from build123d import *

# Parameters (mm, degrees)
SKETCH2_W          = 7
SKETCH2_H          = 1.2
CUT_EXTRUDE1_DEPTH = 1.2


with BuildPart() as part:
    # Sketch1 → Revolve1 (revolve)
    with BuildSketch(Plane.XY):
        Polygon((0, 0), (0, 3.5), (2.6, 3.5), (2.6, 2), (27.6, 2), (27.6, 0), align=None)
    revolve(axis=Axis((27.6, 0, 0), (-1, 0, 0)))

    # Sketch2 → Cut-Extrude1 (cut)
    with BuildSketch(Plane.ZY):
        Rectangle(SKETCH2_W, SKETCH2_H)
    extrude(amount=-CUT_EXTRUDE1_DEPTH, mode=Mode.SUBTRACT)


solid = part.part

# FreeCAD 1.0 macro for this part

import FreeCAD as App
import Part
import Sketcher

V = App.Vector
Q = App.Units.Quantity


def add_polygon(sketch, points):
    """Adds a closed chain of lines whose ends are joined by coincident constraints."""
    first, n = sketch.GeometryCount, len(points)
    for a, b in zip(points, points[1:] + points[:1]):
        sketch.addGeometry(Part.LineSegment(App.Vector(*a, 0), App.Vector(*b, 0)), False)
    for i in range(n):
        sketch.addConstraint(Sketcher.Constraint("Coincident", first + i, 2, first + (i + 1) % n, 1))

doc = App.newDocument("Part")
params = doc.addObject("Spreadsheet::Sheet", "Params")
for row, (alias, value) in enumerate([
    ("sketch1_width", "25 mm"),
    ("sketch1_height", "2 mm"),
    ("sketch1_width2", "27.6 mm"),
    ("sketch1_height2", "3.5 mm"),
    ("revolution_angle", "360 deg"),
    ("sketch2_height", "7 mm"),
    ("sketch2_width", "1.2 mm"),
    ("pocket1_length", "1.2 mm"),
], start=1):
    params.set(f"A{row}", alias)
    params.set(f"B{row}", "=" + value)
    params.setAlias(f"B{row}", alias)

body = doc.addObject("PartDesign::Body", "Body")

# Sketch on XY plane
sketch1 = body.newObject("Sketcher::SketchObject", "Sketch")
sketch1.AttachmentSupport = (doc.getObject("XY_Plane"), [""])
sketch1.MapMode = "FlatFace"
add_polygon(sketch1, [(0, 3.5), (0, 0), (27.6, 0), (27.6, 2), (2.6, 2), (2.6, 3.5)])  # lines 0-5
sketch1.addConstraint(Sketcher.Constraint("Vertical", 0))
sketch1.addConstraint(Sketcher.Constraint("Horizontal", 1))
sketch1.addConstraint(Sketcher.Constraint("Vertical", 2))
sketch1.addConstraint(Sketcher.Constraint("Horizontal", 3))
sketch1.addConstraint(Sketcher.Constraint("Vertical", 4))
sketch1.addConstraint(Sketcher.Constraint("Horizontal", 5))
sketch1.addConstraint(Sketcher.Constraint("Coincident", 0, 2, -1, 1))
sketch1.addConstraint(Sketcher.Constraint("DistanceX", 3, 2, 3, 1, Q("25 mm")))
sketch1.addConstraint(Sketcher.Constraint("DistanceY", 2, 1, 2, 2, Q("2 mm")))
sketch1.addConstraint(Sketcher.Constraint("DistanceX", 1, 1, 1, 2, Q("27.6 mm")))
sketch1.addConstraint(Sketcher.Constraint("DistanceY", 0, 2, 0, 1, Q("3.5 mm")))
sketch1.setExpression("Constraints[13]", "Params.sketch1_width")
sketch1.setExpression("Constraints[14]", "Params.sketch1_height")
sketch1.setExpression("Constraints[15]", "Params.sketch1_width2")
sketch1.setExpression("Constraints[16]", "Params.sketch1_height2")
revolution = body.newObject("PartDesign::Revolution", "Revolution")
revolution.Profile = sketch1
revolution.ReferenceAxis = (sketch1, ["H_Axis"])
revolution.setExpression("Angle", "Params.revolution_angle")

# Sketch on YZ plane
sketch2 = body.newObject("Sketcher::SketchObject", "Sketch001")
sketch2.AttachmentSupport = (doc.getObject("YZ_Plane"), [""])
sketch2.MapMode = "FlatFace"
add_polygon(sketch2, [(0.6, -3.5), (-0.6, -3.5), (-0.6, 3.5), (0.6, 3.5)])  # lines 0-3
sketch2.addConstraint(Sketcher.Constraint("Horizontal", 0))
sketch2.addConstraint(Sketcher.Constraint("Vertical", 1))
sketch2.addConstraint(Sketcher.Constraint("Horizontal", 2))
sketch2.addConstraint(Sketcher.Constraint("Vertical", 3))
sketch2.addConstraint(Sketcher.Constraint("Symmetric", 0, 2, 2, 2, -1, 1))
sketch2.addConstraint(Sketcher.Constraint("DistanceY", 1, 1, 1, 2, Q("7 mm")))
sketch2.addConstraint(Sketcher.Constraint("DistanceX", 0, 2, 0, 1, Q("1.2 mm")))
sketch2.setExpression("Constraints[9]", "Params.sketch2_height")
sketch2.setExpression("Constraints[10]", "Params.sketch2_width")
pocket1 = body.newObject("PartDesign::Pocket", "Pocket")
pocket1.Profile = sketch2
pocket1.setExpression("Length", "Params.pocket1_length")
pocket1.Reversed = True

doc.recompute()
